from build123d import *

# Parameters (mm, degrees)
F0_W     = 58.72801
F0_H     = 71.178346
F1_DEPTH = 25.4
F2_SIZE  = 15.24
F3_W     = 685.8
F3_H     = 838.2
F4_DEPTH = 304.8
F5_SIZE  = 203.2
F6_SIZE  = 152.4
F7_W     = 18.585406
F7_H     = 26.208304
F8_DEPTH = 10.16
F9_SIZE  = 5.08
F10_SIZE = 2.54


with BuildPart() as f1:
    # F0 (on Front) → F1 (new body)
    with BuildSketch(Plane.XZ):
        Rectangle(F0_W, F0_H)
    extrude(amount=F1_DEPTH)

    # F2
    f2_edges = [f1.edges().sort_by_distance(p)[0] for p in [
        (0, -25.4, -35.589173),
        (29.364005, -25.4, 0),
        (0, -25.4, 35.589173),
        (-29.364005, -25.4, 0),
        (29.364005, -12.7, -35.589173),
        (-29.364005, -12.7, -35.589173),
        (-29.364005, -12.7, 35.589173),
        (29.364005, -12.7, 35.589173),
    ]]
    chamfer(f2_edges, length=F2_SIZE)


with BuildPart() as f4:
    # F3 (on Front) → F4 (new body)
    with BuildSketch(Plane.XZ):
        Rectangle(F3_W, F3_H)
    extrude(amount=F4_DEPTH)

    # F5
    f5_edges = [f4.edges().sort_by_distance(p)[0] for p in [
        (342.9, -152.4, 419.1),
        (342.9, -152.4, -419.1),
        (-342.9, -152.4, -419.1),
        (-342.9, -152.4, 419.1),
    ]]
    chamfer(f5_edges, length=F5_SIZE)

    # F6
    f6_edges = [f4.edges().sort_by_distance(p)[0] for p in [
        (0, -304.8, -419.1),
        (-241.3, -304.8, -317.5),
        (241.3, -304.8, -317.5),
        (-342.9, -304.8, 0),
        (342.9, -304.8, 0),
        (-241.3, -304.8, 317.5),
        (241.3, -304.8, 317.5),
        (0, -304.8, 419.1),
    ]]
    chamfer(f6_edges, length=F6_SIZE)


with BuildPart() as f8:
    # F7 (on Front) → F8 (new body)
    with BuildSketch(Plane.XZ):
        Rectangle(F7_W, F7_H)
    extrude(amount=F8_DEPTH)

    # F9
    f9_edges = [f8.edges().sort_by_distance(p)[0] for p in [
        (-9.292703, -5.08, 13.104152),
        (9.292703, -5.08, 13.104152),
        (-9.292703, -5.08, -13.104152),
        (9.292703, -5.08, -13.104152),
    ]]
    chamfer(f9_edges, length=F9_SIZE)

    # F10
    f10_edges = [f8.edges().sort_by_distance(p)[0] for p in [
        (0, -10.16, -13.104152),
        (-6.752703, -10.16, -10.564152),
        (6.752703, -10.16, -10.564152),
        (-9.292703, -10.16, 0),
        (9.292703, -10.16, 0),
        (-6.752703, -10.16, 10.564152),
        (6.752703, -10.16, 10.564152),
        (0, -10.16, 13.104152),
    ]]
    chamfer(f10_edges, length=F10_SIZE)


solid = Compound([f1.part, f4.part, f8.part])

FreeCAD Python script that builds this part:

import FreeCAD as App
import Part
import Sketcher

V = App.Vector
Q = App.Units.Quantity


def edges_at(feature, points):
    """Names of the edges that pass closest to the given points."""
    edges = feature.Shape.Edges
    near = lambda p: min(range(len(edges)), key=lambda i: edges[i].distToShape(Part.Vertex(*p))[0])
    return sorted({f"Edge{near(p) + 1}" for p in points})


def add_polygon(sketch, points):
    """Adds a closed chain of lines whose ends are joined by coincident constraints."""
    first, n = sketch.GeometryCount, len(points)
    for a, b in zip(points, points[1:] + points[:1]):
        sketch.addGeometry(Part.LineSegment(App.Vector(*a, 0), App.Vector(*b, 0)), False)
    for i in range(n):
        sketch.addConstraint(Sketcher.Constraint("Coincident", first + i, 2, first + (i + 1) % n, 1))

doc = App.newDocument("Part")
body = doc.addObject("PartDesign::Body", "Body")

# Sketch on XZ plane
sketch1 = body.newObject("Sketcher::SketchObject", "Sketch")
sketch1.AttachmentSupport = (doc.getObject("XZ_Plane"), [""])
sketch1.MapMode = "FlatFace"
add_polygon(sketch1, [(-29.364005, 35.589173), (-29.364005, -35.589173), (29.364005, -35.589173), (29.364005, 35.589173)])  # lines 0-3
sketch1.addConstraint(Sketcher.Constraint("Vertical", 0))
sketch1.addConstraint(Sketcher.Constraint("Horizontal", 1))
sketch1.addConstraint(Sketcher.Constraint("Vertical", 2))
sketch1.addConstraint(Sketcher.Constraint("Horizontal", 3))
sketch1.addConstraint(Sketcher.Constraint("Symmetric", 0, 2, 2, 2, -1, 1))
sketch1.addConstraint(Sketcher.Constraint("DistanceX", 1, 1, 1, 2, Q("58.72801 mm")))
sketch1.addConstraint(Sketcher.Constraint("DistanceY", 0, 2, 0, 1, Q("71.178346 mm")))
pad1 = body.newObject("PartDesign::Pad", "Pad")
pad1.Profile = sketch1
pad1.Length = Q("1 in")
doc.recompute()

chamfer = body.newObject("PartDesign::Chamfer", "Chamfer")
chamfer.Base = (pad1, edges_at(pad1, [
    (0, -25.4, -35.589),
    (29.364, -25.4, 0),
    (0, -25.4, 35.589),
    (-29.364, -25.4, 0),
    (29.364, -12.7, -35.589),
    (-29.364, -12.7, -35.589),
    (-29.364, -12.7, 35.589),
    (29.364, -12.7, 35.589),
]))
chamfer.Size = Q("0.6 in")
body2 = doc.addObject("PartDesign::Body", "Body001")

# Sketch on XZ plane
sketch2 = body2.newObject("Sketcher::SketchObject", "Sketch001")
sketch2.AttachmentSupport = (doc.getObject("XZ_Plane001"), [""])
sketch2.MapMode = "FlatFace"
add_polygon(sketch2, [(-342.9, 419.1), (-342.9, -419.1), (342.9, -419.1), (342.9, 419.1)])  # lines 0-3
sketch2.addConstraint(Sketcher.Constraint("Vertical", 0))
sketch2.addConstraint(Sketcher.Constraint("Horizontal", 1))
sketch2.addConstraint(Sketcher.Constraint("Vertical", 2))
sketch2.addConstraint(Sketcher.Constraint("Horizontal", 3))
sketch2.addConstraint(Sketcher.Constraint("Symmetric", 0, 2, 2, 2, -1, 1))
sketch2.addConstraint(Sketcher.Constraint("DistanceX", 1, 1, 1, 2, Q("27 in")))
sketch2.addConstraint(Sketcher.Constraint("DistanceY", 0, 2, 0, 1, Q("33 in")))
pad2 = body2.newObject("PartDesign::Pad", "Pad001")
pad2.Profile = sketch2
pad2.Length = Q("12 in")
doc.recompute()

chamfer2 = body2.newObject("PartDesign::Chamfer", "Chamfer001")
chamfer2.Base = (pad2, edges_at(pad2, [
    (342.9, -152.4, 419.1),
    (342.9, -152.4, -419.1),
    (-342.9, -152.4, -419.1),
    (-342.9, -152.4, 419.1),
]))
chamfer2.Size = Q("8 in")
doc.recompute()

chamfer3 = body2.newObject("PartDesign::Chamfer", "Chamfer002")
chamfer3.Base = (chamfer2, edges_at(chamfer2, [
    (0, -304.8, -419.1),
    (-241.3, -304.8, -317.5),
    (241.3, -304.8, -317.5),
    (-342.9, -304.8, 0),
    (342.9, -304.8, 0),
    (-241.3, -304.8, 317.5),
    (241.3, -304.8, 317.5),
    (0, -304.8, 419.1),
]))
chamfer3.Size = Q("6 in")
body3 = doc.addObject("PartDesign::Body", "Body002")

# Sketch on XZ plane
sketch3 = body3.newObject("Sketcher::SketchObject", "Sketch002")
sketch3.AttachmentSupport = (doc.getObject("XZ_Plane002"), [""])
sketch3.MapMode = "FlatFace"
add_polygon(sketch3, [(-9.292703, 13.104152), (-9.292703, -13.104152), (9.292703, -13.104152), (9.292703, 13.104152)])  # lines 0-3
sketch3.addConstraint(Sketcher.Constraint("Vertical", 0))
sketch3.addConstraint(Sketcher.Constraint("Horizontal", 1))
sketch3.addConstraint(Sketcher.Constraint("Vertical", 2))
sketch3.addConstraint(Sketcher.Constraint("Horizontal", 3))
sketch3.addConstraint(Sketcher.Constraint("Symmetric", 0, 2, 2, 2, -1, 1))
sketch3.addConstraint(Sketcher.Constraint("DistanceX", 1, 1, 1, 2, Q("18.585406 mm")))
sketch3.addConstraint(Sketcher.Constraint("DistanceY", 0, 2, 0, 1, Q("26.208304 mm")))
pad3 = body3.newObject("PartDesign::Pad", "Pad002")
pad3.Profile = sketch3
pad3.Length = Q("0.4 in")
doc.recompute()

chamfer4 = body3.newObject("PartDesign::Chamfer", "Chamfer003")
chamfer4.Base = (pad3, edges_at(pad3, [
    (-9.293, -5.08, 13.104),
    (9.293, -5.08, 13.104),
    (-9.293, -5.08, -13.104),
    (9.293, -5.08, -13.104),
]))
chamfer4.Size = Q("0.2 in")
doc.recompute()

chamfer5 = body3.newObject("PartDesign::Chamfer", "Chamfer004")
chamfer5.Base = (chamfer4, edges_at(chamfer4, [
    (0, -10.16, -13.104),
    (-6.753, -10.16, -10.564),
    (6.753, -10.16, -10.564),
    (-9.293, -10.16, 0),
    (9.293, -10.16, 0),
    (-6.753, -10.16, 10.564),
    (6.753, -10.16, 10.564),
    (0, -10.16, 13.104),
]))
chamfer5.Size = Q("0.1 in")

doc.recompute()
